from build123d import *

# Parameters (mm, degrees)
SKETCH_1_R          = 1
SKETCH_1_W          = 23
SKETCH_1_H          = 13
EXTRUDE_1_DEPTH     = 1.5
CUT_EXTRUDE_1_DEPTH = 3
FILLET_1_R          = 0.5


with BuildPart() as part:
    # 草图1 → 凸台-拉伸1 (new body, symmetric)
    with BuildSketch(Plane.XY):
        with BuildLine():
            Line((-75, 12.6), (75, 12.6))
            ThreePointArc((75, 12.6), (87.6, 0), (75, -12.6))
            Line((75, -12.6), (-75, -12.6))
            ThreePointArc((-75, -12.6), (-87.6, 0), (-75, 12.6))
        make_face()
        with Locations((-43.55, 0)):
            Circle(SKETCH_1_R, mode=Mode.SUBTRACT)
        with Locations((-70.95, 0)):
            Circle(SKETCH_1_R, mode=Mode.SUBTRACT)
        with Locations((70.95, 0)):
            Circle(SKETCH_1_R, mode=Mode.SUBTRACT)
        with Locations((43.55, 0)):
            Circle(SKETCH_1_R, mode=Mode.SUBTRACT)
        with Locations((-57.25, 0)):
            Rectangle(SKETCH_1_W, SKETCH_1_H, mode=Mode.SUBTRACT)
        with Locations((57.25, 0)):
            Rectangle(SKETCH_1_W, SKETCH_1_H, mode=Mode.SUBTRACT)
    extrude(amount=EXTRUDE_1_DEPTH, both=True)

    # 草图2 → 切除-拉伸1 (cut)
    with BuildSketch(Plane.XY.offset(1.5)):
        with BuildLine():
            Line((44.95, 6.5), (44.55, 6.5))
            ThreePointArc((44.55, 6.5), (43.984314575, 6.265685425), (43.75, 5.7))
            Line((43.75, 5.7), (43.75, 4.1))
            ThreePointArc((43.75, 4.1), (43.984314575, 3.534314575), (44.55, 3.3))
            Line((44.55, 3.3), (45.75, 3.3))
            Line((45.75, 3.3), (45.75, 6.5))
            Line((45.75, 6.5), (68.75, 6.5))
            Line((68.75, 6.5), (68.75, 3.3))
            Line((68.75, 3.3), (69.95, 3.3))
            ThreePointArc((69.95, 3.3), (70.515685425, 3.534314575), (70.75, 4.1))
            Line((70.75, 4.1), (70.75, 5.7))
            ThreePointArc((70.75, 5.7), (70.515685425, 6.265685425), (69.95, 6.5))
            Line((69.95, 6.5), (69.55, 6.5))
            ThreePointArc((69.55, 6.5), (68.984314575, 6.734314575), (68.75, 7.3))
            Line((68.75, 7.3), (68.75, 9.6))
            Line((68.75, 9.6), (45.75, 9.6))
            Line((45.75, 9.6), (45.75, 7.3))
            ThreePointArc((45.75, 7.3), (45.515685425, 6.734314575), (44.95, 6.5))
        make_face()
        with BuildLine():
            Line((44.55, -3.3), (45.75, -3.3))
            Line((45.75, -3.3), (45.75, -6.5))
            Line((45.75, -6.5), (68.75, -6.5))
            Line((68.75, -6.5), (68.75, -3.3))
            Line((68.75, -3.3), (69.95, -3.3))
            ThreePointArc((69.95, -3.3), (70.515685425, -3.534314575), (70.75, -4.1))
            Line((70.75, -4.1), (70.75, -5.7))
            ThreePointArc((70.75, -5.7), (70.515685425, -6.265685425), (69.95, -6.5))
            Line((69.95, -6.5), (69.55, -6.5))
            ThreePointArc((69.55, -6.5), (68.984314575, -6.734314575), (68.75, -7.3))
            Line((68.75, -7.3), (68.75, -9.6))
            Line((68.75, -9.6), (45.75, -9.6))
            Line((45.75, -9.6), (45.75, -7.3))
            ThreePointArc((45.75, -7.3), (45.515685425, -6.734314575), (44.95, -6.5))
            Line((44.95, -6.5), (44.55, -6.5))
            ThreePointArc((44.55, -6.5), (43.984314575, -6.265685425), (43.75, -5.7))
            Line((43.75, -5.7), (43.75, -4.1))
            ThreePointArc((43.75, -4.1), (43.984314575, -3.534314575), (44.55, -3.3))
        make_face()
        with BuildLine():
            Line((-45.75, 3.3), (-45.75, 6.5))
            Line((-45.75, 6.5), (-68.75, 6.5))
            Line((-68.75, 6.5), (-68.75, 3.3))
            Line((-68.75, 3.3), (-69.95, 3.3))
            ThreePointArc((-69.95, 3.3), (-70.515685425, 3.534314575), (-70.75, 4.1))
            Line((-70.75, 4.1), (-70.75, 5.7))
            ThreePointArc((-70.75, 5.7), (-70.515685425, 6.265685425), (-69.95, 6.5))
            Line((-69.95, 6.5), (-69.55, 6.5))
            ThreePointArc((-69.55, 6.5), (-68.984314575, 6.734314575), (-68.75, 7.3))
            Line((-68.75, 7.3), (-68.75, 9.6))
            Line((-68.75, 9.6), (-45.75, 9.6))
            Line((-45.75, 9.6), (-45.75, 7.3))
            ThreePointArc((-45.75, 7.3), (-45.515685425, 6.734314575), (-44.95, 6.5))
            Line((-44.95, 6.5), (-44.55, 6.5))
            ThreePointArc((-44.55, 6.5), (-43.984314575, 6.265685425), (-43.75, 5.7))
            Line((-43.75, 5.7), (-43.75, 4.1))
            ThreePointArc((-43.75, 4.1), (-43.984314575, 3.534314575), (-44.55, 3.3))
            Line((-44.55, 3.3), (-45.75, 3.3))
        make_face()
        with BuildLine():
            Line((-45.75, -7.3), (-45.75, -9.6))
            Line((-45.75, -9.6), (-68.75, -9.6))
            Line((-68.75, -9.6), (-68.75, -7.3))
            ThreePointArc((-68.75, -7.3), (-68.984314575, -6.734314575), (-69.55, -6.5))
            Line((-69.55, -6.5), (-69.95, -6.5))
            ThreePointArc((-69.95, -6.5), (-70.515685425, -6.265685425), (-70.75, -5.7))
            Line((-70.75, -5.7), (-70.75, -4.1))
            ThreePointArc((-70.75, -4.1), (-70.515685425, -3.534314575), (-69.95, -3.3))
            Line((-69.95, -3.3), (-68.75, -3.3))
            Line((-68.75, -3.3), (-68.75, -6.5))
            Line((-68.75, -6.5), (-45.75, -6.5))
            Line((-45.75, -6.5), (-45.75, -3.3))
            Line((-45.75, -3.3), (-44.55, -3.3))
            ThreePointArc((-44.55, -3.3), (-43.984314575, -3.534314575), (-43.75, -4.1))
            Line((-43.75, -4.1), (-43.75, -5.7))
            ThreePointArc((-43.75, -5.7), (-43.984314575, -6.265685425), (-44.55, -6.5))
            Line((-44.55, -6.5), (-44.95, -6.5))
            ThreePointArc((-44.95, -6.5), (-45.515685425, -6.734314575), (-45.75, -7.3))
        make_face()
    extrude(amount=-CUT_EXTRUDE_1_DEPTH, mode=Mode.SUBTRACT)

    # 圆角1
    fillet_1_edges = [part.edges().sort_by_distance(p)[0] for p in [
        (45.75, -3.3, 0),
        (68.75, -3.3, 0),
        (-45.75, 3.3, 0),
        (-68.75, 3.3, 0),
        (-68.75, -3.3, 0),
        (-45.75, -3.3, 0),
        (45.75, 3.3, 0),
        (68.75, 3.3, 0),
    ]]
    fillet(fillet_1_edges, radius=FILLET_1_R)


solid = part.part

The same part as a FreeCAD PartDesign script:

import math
import FreeCAD as App
import Part
import Sketcher
from FreeCAD import Vector


def edges_at(feature, points):
    """Names of the edges that pass closest to the given points."""
    edges = feature.Shape.Edges
    near = lambda p: min(range(len(edges)), key=lambda i: edges[i].distToShape(Part.Vertex(*p))[0])
    return sorted({f"Edge{near(p) + 1}" for p in points})

doc = App.newDocument("Part")
params = doc.addObject("Spreadsheet::Sheet", "Params")
for row, (alias, value) in enumerate([
    ("sketch1_diameter", "2 mm"),
    ("sketch1_radius", "12.6 mm"),
    ("sketch1_width", "150 mm"),
    ("sketch1_width2", "23 mm"),
    ("sketch1_height", "13 mm"),
    ("pad1_length", "3 mm"),
    ("sketch2_radius", "0.8 mm"),
    ("sketch2_width", "23 mm"),
    ("sketch2_width2", "0.4 mm"),
    ("sketch2_height", "1.6 mm"),
    ("sketch2_height2", "2.3 mm"),
    ("pocket1_length", "3 mm"),
    ("fillet_radius", "0.5 mm"),
], start=1):
    params.set(f"A{row}", alias)
    params.set(f"B{row}", "=" + value)
    params.setAlias(f"B{row}", alias)

body = doc.addObject("PartDesign::Body", "Body")

sketch1 = body.newObject("Sketcher::SketchObject", "Sketch")
sketch1.AttachmentSupport = (doc.getObject("XY_Plane"), [""])
sketch1.MapMode = "FlatFace"
sketch1.addGeometry([
    Part.LineSegment(Vector(75, 12.6, 0), Vector(-75, 12.6, 0)),
    Part.ArcOfCircle(Part.Circle(Vector(-75, 0, 0), Vector(0, 0, 1), 12.6), math.radians(90), math.radians(270)),
    Part.LineSegment(Vector(-75, -12.6, 0), Vector(75, -12.6, 0)),
    Part.ArcOfCircle(Part.Circle(Vector(75, 0, 0), Vector(0, 0, 1), 12.6), math.radians(-90), math.radians(90)),
    Part.Circle(Vector(70.95, 0, 0), Vector(0, 0, 1), 1),
    Part.LineSegment(Vector(45.75, -6.5, 0), Vector(45.75, 6.5, 0)),
    Part.LineSegment(Vector(45.75, 6.5, 0), Vector(68.75, 6.5, 0)),
    Part.LineSegment(Vector(68.75, 6.5, 0), Vector(68.75, -6.5, 0)),
    Part.LineSegment(Vector(68.75, -6.5, 0), Vector(45.75, -6.5, 0)),
    Part.Circle(Vector(43.55, 0, 0), Vector(0, 0, 1), 1),
    Part.Circle(Vector(-43.55, 0, 0), Vector(0, 0, 1), 1),
    Part.LineSegment(Vector(-68.75, -6.5, 0), Vector(-68.75, 6.5, 0)),
    Part.LineSegment(Vector(-68.75, 6.5, 0), Vector(-45.75, 6.5, 0)),
    Part.LineSegment(Vector(-45.75, 6.5, 0), Vector(-45.75, -6.5, 0)),
    Part.LineSegment(Vector(-45.75, -6.5, 0), Vector(-68.75, -6.5, 0)),
    Part.Circle(Vector(-70.95, 0, 0), Vector(0, 0, 1), 1),
], False)
sketch1.addConstraint([
    Sketcher.Constraint("Tangent", 0, 2, 1, 1),
    Sketcher.Constraint("Tangent", 1, 2, 2, 1),
    Sketcher.Constraint("Tangent", 2, 2, 3, 1),
    Sketcher.Constraint("Tangent", 3, 2, 0, 1),
    Sketcher.Constraint("Coincident", 5, 2, 6, 1),
    Sketcher.Constraint("Coincident", 6, 2, 7, 1),
    Sketcher.Constraint("Coincident", 7, 2, 8, 1),
    Sketcher.Constraint("Coincident", 8, 2, 5, 1),
    Sketcher.Constraint("Coincident", 11, 2, 12, 1),
    Sketcher.Constraint("Coincident", 12, 2, 13, 1),
    Sketcher.Constraint("Coincident", 13, 2, 14, 1),
    Sketcher.Constraint("Coincident", 14, 2, 11, 1),
    Sketcher.Constraint("Horizontal", 0),
    Sketcher.Constraint("Horizontal", 2),
    Sketcher.Constraint("Vertical", 5),
    Sketcher.Constraint("Horizontal", 6),
    Sketcher.Constraint("Vertical", 7),
    Sketcher.Constraint("Horizontal", 8),
    Sketcher.Constraint("Vertical", 11),
    Sketcher.Constraint("Horizontal", 12),
    Sketcher.Constraint("Vertical", 13),
    Sketcher.Constraint("Horizontal", 14),
    Sketcher.Constraint("Equal", 4, 9),
    Sketcher.Constraint("Equal", 9, 10),
    Sketcher.Constraint("Equal", 10, 15),
    Sketcher.Constraint("Symmetric", 1, 3, 3, 3, -1, 1),
    Sketcher.Constraint("Symmetric", 9, 3, 10, 3, -1, 1),
    Sketcher.Constraint("Symmetric", 4, 3, 15, 3, -1, 1),
    Sketcher.Constraint("Symmetric", 7, 2, 11, 2, -1, 1),
    Sketcher.Constraint("Symmetric", 5, 2, 13, 2, -1, 1),
    Sketcher.Constraint("PointOnObject", 4, 3, -1),
    Sketcher.Constraint("PointOnObject", 9, 3, -1),
    Sketcher.Constraint("Horizontal", 6, 2, 11, 2),
    Sketcher.Constraint("Diameter", 4, 2.0),
    Sketcher.Constraint("Radius", 1, 12.6),
    Sketcher.Constraint("DistanceX", 0, 2, 0, 1, 150.0),
    Sketcher.Constraint("DistanceX", 6, 1, 6, 2, 23.0),
    Sketcher.Constraint("DistanceY", 5, 1, 5, 2, 13.0),
    Sketcher.Constraint("DistanceX", 9, 3, 4, 3, 27.4),
    Sketcher.Constraint("DistanceX", 10, 3, 9, 3, 87.1),
    Sketcher.Constraint("DistanceX", 9, 3, 5, 2, 2.2),
])
sketch1.setExpression("Constraints[33]", "Params.sketch1_diameter")
sketch1.setExpression("Constraints[34]", "Params.sketch1_radius")
sketch1.setExpression("Constraints[35]", "Params.sketch1_width")
sketch1.setExpression("Constraints[36]", "Params.sketch1_width2")
sketch1.setExpression("Constraints[37]", "Params.sketch1_height")
pad1 = body.newObject("PartDesign::Pad", "Pad")
pad1.Profile = sketch1
pad1.setExpression("Length", "Params.pad1_length")
pad1.Midplane = True

sketch2 = body.newObject("Sketcher::SketchObject", "Sketch001")
sketch2.AttachmentSupport = (doc.getObject("XY_Plane"), [""])
sketch2.MapMode = "FlatFace"
sketch2.AttachmentOffset = App.Placement(Vector(0, 0, 1.5), App.Rotation())
sketch2.addGeometry([
    Part.LineSegment(Vector(44.95, 6.5, 0), Vector(44.55, 6.5, 0)),
    Part.ArcOfCircle(Part.Circle(Vector(44.55, 5.7, 0), Vector(0, 0, 1), 0.8), math.radians(90), math.radians(180)),
    Part.LineSegment(Vector(43.75, 5.7, 0), Vector(43.75, 4.1, 0)),
    Part.ArcOfCircle(Part.Circle(Vector(44.55, 4.1, 0), Vector(0, 0, 1), 0.8), math.radians(180), math.radians(270)),
    Part.LineSegment(Vector(44.55, 3.3, 0), Vector(45.75, 3.3, 0)),
    Part.LineSegment(Vector(45.75, 3.3, 0), Vector(45.75, 6.5, 0)),
    Part.LineSegment(Vector(45.75, 6.5, 0), Vector(68.75, 6.5, 0)),
    Part.LineSegment(Vector(68.75, 6.5, 0), Vector(68.75, 3.3, 0)),
    Part.LineSegment(Vector(68.75, 3.3, 0), Vector(69.95, 3.3, 0)),
    Part.ArcOfCircle(Part.Circle(Vector(69.95, 4.1, 0), Vector(0, 0, 1), 0.8), math.radians(-90), math.radians(0)),
    Part.LineSegment(Vector(70.75, 4.1, 0), Vector(70.75, 5.7, 0)),
    Part.ArcOfCircle(Part.Circle(Vector(69.95, 5.7, 0), Vector(0, 0, 1), 0.8), math.radians(0), math.radians(90)),
    Part.LineSegment(Vector(69.95, 6.5, 0), Vector(69.55, 6.5, 0)),
    Part.ArcOfCircle(Part.Circle(Vector(69.55, 7.3, 0), Vector(0, 0, 1), 0.8), math.radians(180), math.radians(270)),
    Part.LineSegment(Vector(68.75, 7.3, 0), Vector(68.75, 9.6, 0)),
    Part.LineSegment(Vector(68.75, 9.6, 0), Vector(45.75, 9.6, 0)),
    Part.LineSegment(Vector(45.75, 9.6, 0), Vector(45.75, 7.3, 0)),
    Part.ArcOfCircle(Part.Circle(Vector(44.95, 7.3, 0), Vector(0, 0, 1), 0.8), math.radians(-90), math.radians(0)),
    Part.LineSegment(Vector(45.75, -3.3, 0), Vector(44.55, -3.3, 0)),
    Part.ArcOfCircle(Part.Circle(Vector(44.55, -4.1, 0), Vector(0, 0, 1), 0.8), math.radians(90), math.radians(180)),
    Part.LineSegment(Vector(43.75, -4.1, 0), Vector(43.75, -5.7, 0)),
    Part.ArcOfCircle(Part.Circle(Vector(44.55, -5.7, 0), Vector(0, 0, 1), 0.8), math.radians(180), math.radians(270)),
    Part.LineSegment(Vector(44.55, -6.5, 0), Vector(44.95, -6.5, 0)),
    Part.ArcOfCircle(Part.Circle(Vector(44.95, -7.3, 0), Vector(0, 0, 1), 0.8), math.radians(0), math.radians(90)),
    Part.LineSegment(Vector(45.75, -7.3, 0), Vector(45.75, -9.6, 0)),
    Part.LineSegment(Vector(45.75, -9.6, 0), Vector(68.75, -9.6, 0)),
    Part.LineSegment(Vector(68.75, -9.6, 0), Vector(68.75, -7.3, 0)),
    Part.ArcOfCircle(Part.Circle(Vector(69.55, -7.3, 0), Vector(0, 0, 1), 0.8), math.radians(90), math.radians(180)),
    Part.LineSegment(Vector(69.55, -6.5, 0), Vector(69.95, -6.5, 0)),
    Part.ArcOfCircle(Part.Circle(Vector(69.95, -5.7, 0), Vector(0, 0, 1), 0.8), math.radians(-90), math.radians(0)),
    Part.LineSegment(Vector(70.75, -5.7, 0), Vector(70.75, -4.1, 0)),
    Part.ArcOfCircle(Part.Circle(Vector(69.95, -4.1, 0), Vector(0, 0, 1), 0.8), math.radians(0), math.radians(90)),
    Part.LineSegment(Vector(69.95, -3.3, 0), Vector(68.75, -3.3, 0)),
    Part.LineSegment(Vector(68.75, -3.3, 0), Vector(68.75, -6.5, 0)),
    Part.LineSegment(Vector(68.75, -6.5, 0), Vector(45.75, -6.5, 0)),
    Part.LineSegment(Vector(45.75, -6.5, 0), Vector(45.75, -3.3, 0)),
    Part.LineSegment(Vector(-45.75, 6.5, 0), Vector(-45.75, 3.3, 0)),
    Part.LineSegment(Vector(-45.75, 3.3, 0), Vector(-44.55, 3.3, 0)),
    Part.ArcOfCircle(Part.Circle(Vector(-44.55, 4.1, 0), Vector(0, 0, 1), 0.8), math.radians(-90), math.radians(0)),
    Part.LineSegment(Vector(-43.75, 4.1, 0), Vector(-43.75, 5.7, 0)),
    Part.ArcOfCircle(Part.Circle(Vector(-44.55, 5.7, 0), Vector(0, 0, 1), 0.8), math.radians(0), math.radians(90)),
    Part.LineSegment(Vector(-44.55, 6.5, 0), Vector(-44.95, 6.5, 0)),
    Part.ArcOfCircle(Part.Circle(Vector(-44.95, 7.3, 0), Vector(0, 0, 1), 0.8), math.radians(180), math.radians(270)),
    Part.LineSegment(Vector(-45.75, 7.3, 0), Vector(-45.75, 9.6, 0)),
    Part.LineSegment(Vector(-45.75, 9.6, 0), Vector(-68.75, 9.6, 0)),
    Part.LineSegment(Vector(-68.75, 9.6, 0), Vector(-68.75, 7.3, 0)),
    Part.ArcOfCircle(Part.Circle(Vector(-69.55, 7.3, 0), Vector(0, 0, 1), 0.8), math.radians(-90), math.radians(0)),
    Part.LineSegment(Vector(-69.55, 6.5, 0), Vector(-69.95, 6.5, 0)),
    Part.ArcOfCircle(Part.Circle(Vector(-69.95, 5.7, 0), Vector(0, 0, 1), 0.8), math.radians(90), math.radians(180)),
    Part.LineSegment(Vector(-70.75, 5.7, 0), Vector(-70.75, 4.1, 0)),
    Part.ArcOfCircle(Part.Circle(Vector(-69.95, 4.1, 0), Vector(0, 0, 1), 0.8), math.radians(180), math.radians(270)),
    Part.LineSegment(Vector(-69.95, 3.3, 0), Vector(-68.75, 3.3, 0)),
    Part.LineSegment(Vector(-68.75, 3.3, 0), Vector(-68.75, 6.5, 0)),
    Part.LineSegment(Vector(-68.75, 6.5, 0), Vector(-45.75, 6.5, 0)),
    Part.LineSegment(Vector(-45.75, -9.6, 0), Vector(-45.75, -7.3, 0)),
    Part.ArcOfCircle(Part.Circle(Vector(-44.95, -7.3, 0), Vector(0, 0, 1), 0.8), math.radians(90), math.radians(180)),
    Part.LineSegment(Vector(-44.95, -6.5, 0), Vector(-44.55, -6.5, 0)),
    Part.ArcOfCircle(Part.Circle(Vector(-44.55, -5.7, 0), Vector(0, 0, 1), 0.8), math.radians(-90), math.radians(0)),
    Part.LineSegment(Vector(-43.75, -5.7, 0), Vector(-43.75, -4.1, 0)),
    Part.ArcOfCircle(Part.Circle(Vector(-44.55, -4.1, 0), Vector(0, 0, 1), 0.8), math.radians(0), math.radians(90)),
    Part.LineSegment(Vector(-44.55, -3.3, 0), Vector(-45.75, -3.3, 0)),
    Part.LineSegment(Vector(-45.75, -3.3, 0), Vector(-45.75, -6.5, 0)),
    Part.LineSegment(Vector(-45.75, -6.5, 0), Vector(-68.75, -6.5, 0)),
    Part.LineSegment(Vector(-68.75, -6.5, 0), Vector(-68.75, -3.3, 0)),
    Part.LineSegment(Vector(-68.75, -3.3, 0), Vector(-69.95, -3.3, 0)),
    Part.ArcOfCircle(Part.Circle(Vector(-69.95, -4.1, 0), Vector(0, 0, 1), 0.8), math.radians(90), math.radians(180)),
    Part.LineSegment(Vector(-70.75, -4.1, 0), Vector(-70.75, -5.7, 0)),
    Part.ArcOfCircle(Part.Circle(Vector(-69.95, -5.7, 0), Vector(0, 0, 1), 0.8), math.radians(180), math.radians(270)),
    Part.LineSegment(Vector(-69.95, -6.5, 0), Vector(-69.55, -6.5, 0)),
    Part.ArcOfCircle(Part.Circle(Vector(-69.55, -7.3, 0), Vector(0, 0, 1), 0.8), math.radians(0), math.radians(90)),
    Part.LineSegment(Vector(-68.75, -7.3, 0), Vector(-68.75, -9.6, 0)),
    Part.LineSegment(Vector(-68.75, -9.6, 0), Vector(-45.75, -9.6, 0)),
], False)
sketch2.addConstraint([
    Sketcher.Constraint("Tangent", 0, 2, 1, 1),
    Sketcher.Constraint("Tangent", 1, 2, 2, 1),
    Sketcher.Constraint("Tangent", 2, 2, 3, 1),
    Sketcher.Constraint("Tangent", 3, 2, 4, 1),
    Sketcher.Constraint("Coincident", 4, 2, 5, 1),
    Sketcher.Constraint("Coincident", 5, 2, 6, 1),
    Sketcher.Constraint("Coincident", 6, 2, 7, 1),
    Sketcher.Constraint("Coincident", 7, 2, 8, 1),
    Sketcher.Constraint("Tangent", 8, 2, 9, 1),
    Sketcher.Constraint("Tangent", 9, 2, 10, 1),
    Sketcher.Constraint("Tangent", 10, 2, 11, 1),
    Sketcher.Constraint("Tangent", 11, 2, 12, 1),
    Sketcher.Constraint("Tangent", 12, 2, 13, 2),
    Sketcher.Constraint("Tangent", 13, 1, 14, 1),
    Sketcher.Constraint("Coincident", 14, 2, 15, 1),
    Sketcher.Constraint("Coincident", 15, 2, 16, 1),
    Sketcher.Constraint("Tangent", 16, 2, 17, 2),
    Sketcher.Constraint("Tangent", 17, 1, 0, 1),
    Sketcher.Constraint("Tangent", 18, 2, 19, 1),
    Sketcher.Constraint("Tangent", 19, 2, 20, 1),
    Sketcher.Constraint("Tangent", 20, 2, 21, 1),
    Sketcher.Constraint("Tangent", 21, 2, 22, 1),
    Sketcher.Constraint("Tangent", 22, 2, 23, 2),
    Sketcher.Constraint("Tangent", 23, 1, 24, 1),
    Sketcher.Constraint("Coincident", 24, 2, 25, 1),
    Sketcher.Constraint("Coincident", 25, 2, 26, 1),
    Sketcher.Constraint("Tangent", 26, 2, 27, 2),
    Sketcher.Constraint("Tangent", 27, 1, 28, 1),
    Sketcher.Constraint("Tangent", 28, 2, 29, 1),
    Sketcher.Constraint("Tangent", 29, 2, 30, 1),
    Sketcher.Constraint("Tangent", 30, 2, 31, 1),
    Sketcher.Constraint("Tangent", 31, 2, 32, 1),
    Sketcher.Constraint("Coincident", 32, 2, 33, 1),
    Sketcher.Constraint("Coincident", 33, 2, 34, 1),
    Sketcher.Constraint("Coincident", 34, 2, 35, 1),
    Sketcher.Constraint("Coincident", 35, 2, 18, 1),
    Sketcher.Constraint("Coincident", 36, 2, 37, 1),
    Sketcher.Constraint("Tangent", 37, 2, 38, 1),
    Sketcher.Constraint("Tangent", 38, 2, 39, 1),
    Sketcher.Constraint("Tangent", 39, 2, 40, 1),
    Sketcher.Constraint("Tangent", 40, 2, 41, 1),
    Sketcher.Constraint("Tangent", 41, 2, 42, 2),
    Sketcher.Constraint("Tangent", 42, 1, 43, 1),
    Sketcher.Constraint("Coincident", 43, 2, 44, 1),
    Sketcher.Constraint("Coincident", 44, 2, 45, 1),
    Sketcher.Constraint("Tangent", 45, 2, 46, 2),
    Sketcher.Constraint("Tangent", 46, 1, 47, 1),
    Sketcher.Constraint("Tangent", 47, 2, 48, 1),
    Sketcher.Constraint("Tangent", 48, 2, 49, 1),
    Sketcher.Constraint("Tangent", 49, 2, 50, 1),
    Sketcher.Constraint("Tangent", 50, 2, 51, 1),
    Sketcher.Constraint("Coincident", 51, 2, 52, 1),
    Sketcher.Constraint("Coincident", 52, 2, 53, 1),
    Sketcher.Constraint("Coincident", 53, 2, 36, 1),
    Sketcher.Constraint("Tangent", 54, 2, 55, 2),
    Sketcher.Constraint("Tangent", 55, 1, 56, 1),
    Sketcher.Constraint("Tangent", 56, 2, 57, 1),
    Sketcher.Constraint("Tangent", 57, 2, 58, 1),
    Sketcher.Constraint("Tangent", 58, 2, 59, 1),
    Sketcher.Constraint("Tangent", 59, 2, 60, 1),
    Sketcher.Constraint("Coincident", 60, 2, 61, 1),
    Sketcher.Constraint("Coincident", 61, 2, 62, 1),
    Sketcher.Constraint("Coincident", 62, 2, 63, 1),
    Sketcher.Constraint("Coincident", 63, 2, 64, 1),
    Sketcher.Constraint("Tangent", 64, 2, 65, 1),
    Sketcher.Constraint("Tangent", 65, 2, 66, 1),
    Sketcher.Constraint("Tangent", 66, 2, 67, 1),
    Sketcher.Constraint("Tangent", 67, 2, 68, 1),
    Sketcher.Constraint("Tangent", 68, 2, 69, 2),
    Sketcher.Constraint("Tangent", 69, 1, 70, 1),
    Sketcher.Constraint("Coincident", 70, 2, 71, 1),
    Sketcher.Constraint("Coincident", 71, 2, 54, 1),
    Sketcher.Constraint("Horizontal", 0),
    Sketcher.Constraint("Vertical", 2),
    Sketcher.Constraint("Horizontal", 4),
    Sketcher.Constraint("Vertical", 5),
    Sketcher.Constraint("Horizontal", 6),
    Sketcher.Constraint("Vertical", 7),
    Sketcher.Constraint("Horizontal", 8),
    Sketcher.Constraint("Vertical", 10),
    Sketcher.Constraint("Horizontal", 12),
    Sketcher.Constraint("Vertical", 14),
    Sketcher.Constraint("Horizontal", 15),
    Sketcher.Constraint("Vertical", 16),
    Sketcher.Constraint("Horizontal", 18),
    Sketcher.Constraint("Vertical", 20),
    Sketcher.Constraint("Horizontal", 22),
    Sketcher.Constraint("Vertical", 24),
    Sketcher.Constraint("Horizontal", 25),
    Sketcher.Constraint("Vertical", 26),
    Sketcher.Constraint("Horizontal", 28),
    Sketcher.Constraint("Vertical", 30),
    Sketcher.Constraint("Horizontal", 32),
    Sketcher.Constraint("Vertical", 33),
    Sketcher.Constraint("Horizontal", 34),
    Sketcher.Constraint("Vertical", 35),
    Sketcher.Constraint("Vertical", 36),
    Sketcher.Constraint("Horizontal", 37),
    Sketcher.Constraint("Vertical", 39),
    Sketcher.Constraint("Horizontal", 41),
    Sketcher.Constraint("Vertical", 43),
    Sketcher.Constraint("Horizontal", 44),
    Sketcher.Constraint("Vertical", 45),
    Sketcher.Constraint("Horizontal", 47),
    Sketcher.Constraint("Vertical", 49),
    Sketcher.Constraint("Horizontal", 51),
    Sketcher.Constraint("Vertical", 52),
    Sketcher.Constraint("Horizontal", 53),
    Sketcher.Constraint("Vertical", 54),
    Sketcher.Constraint("Horizontal", 56),
    Sketcher.Constraint("Vertical", 58),
    Sketcher.Constraint("Horizontal", 60),
    Sketcher.Constraint("Vertical", 61),
    Sketcher.Constraint("Horizontal", 62),
    Sketcher.Constraint("Vertical", 63),
    Sketcher.Constraint("Horizontal", 64),
    Sketcher.Constraint("Vertical", 66),
    Sketcher.Constraint("Horizontal", 68),
    Sketcher.Constraint("Vertical", 70),
    Sketcher.Constraint("Horizontal", 71),
    Sketcher.Constraint("Equal", 1, 3),
    Sketcher.Constraint("Equal", 3, 9),
    Sketcher.Constraint("Equal", 9, 11),
    Sketcher.Constraint("Equal", 11, 13),
    Sketcher.Constraint("Equal", 13, 17),
    Sketcher.Constraint("Equal", 17, 19),
    Sketcher.Constraint("Equal", 19, 21),
    Sketcher.Constraint("Equal", 21, 23),
    Sketcher.Constraint("Equal", 23, 27),
    Sketcher.Constraint("Equal", 27, 29),
    Sketcher.Constraint("Equal", 29, 31),
    Sketcher.Constraint("Equal", 31, 38),
    Sketcher.Constraint("Equal", 38, 40),
    Sketcher.Constraint("Equal", 40, 42),
    Sketcher.Constraint("Equal", 42, 46),
    Sketcher.Constraint("Equal", 46, 48),
    Sketcher.Constraint("Equal", 48, 50),
    Sketcher.Constraint("Equal", 50, 55),
    Sketcher.Constraint("Equal", 55, 57),
    Sketcher.Constraint("Equal", 57, 59),
    Sketcher.Constraint("Equal", 59, 65),
    Sketcher.Constraint("Equal", 65, 67),
    Sketcher.Constraint("Equal", 67, 69),
    Sketcher.Constraint("Symmetric", 19, 3, 38, 3, -1, 1),
    Sketcher.Constraint("Symmetric", 23, 3, 42, 3, -1, 1),
    Sketcher.Constraint("Symmetric", 27, 3, 46, 3, -1, 1),
    Sketcher.Constraint("Symmetric", 31, 3, 50, 3, -1, 1),
    Sketcher.Constraint("Symmetric", 17, 3, 55, 3, -1, 1),
    Sketcher.Constraint("Symmetric", 3, 3, 59, 3, -1, 1),
    Sketcher.Constraint("Symmetric", 9, 3, 65, 3, -1, 1),
    Sketcher.Constraint("Symmetric", 13, 3, 69, 3, -1, 1),
    Sketcher.Constraint("Symmetric", 33, 2, 52, 2, -1, 1),
    Sketcher.Constraint("Symmetric", 5, 2, 61, 2, -1, 1),
    Sketcher.Constraint("Symmetric", 3, 3, 38, 3, -2),
    Sketcher.Constraint("Symmetric", 17, 3, 42, 3, -2),
    Sketcher.Constraint("Symmetric", 13, 3, 46, 3, -2),
    Sketcher.Constraint("Symmetric", 9, 3, 50, 3, -2),
    Sketcher.Constraint("Symmetric", 6, 2, 52, 2, -2),
    Sketcher.Constraint("Horizontal", 3, 3, 9, 3),
    Sketcher.Constraint("Horizontal", 1, 3, 11, 3),
    Sketcher.Constraint("Horizontal", 0, 2, 5, 2),
    Sketcher.Constraint("Horizontal", 15, 2, 43, 2),
    Sketcher.Constraint("Horizontal", 25, 2, 70, 2),
    Sketcher.Constraint("Vertical", 7, 2, 13, 1),
    Sketcher.Constraint("Vertical", 5, 2, 15, 2),
    Sketcher.Constraint("Vertical", 24, 2, 34, 2),
    Sketcher.Constraint("Vertical", 36, 2, 42, 1),
    Sketcher.Constraint("Vertical", 52, 2, 62, 2),
    Sketcher.Constraint("Equal", 4, 8),
    Sketcher.Constraint("Equal", 16, 24),
    Sketcher.Constraint("Radius", 1, 0.8),
    Sketcher.Constraint("DistanceX", 6, 1, 6, 2, 23.0),
    Sketcher.Constraint("DistanceX", 0, 2, 0, 1, 0.4),
    Sketcher.Constraint("DistanceY", 2, 2, 2, 1, 1.6),
    Sketcher.Constraint("DistanceY", 14, 1, 14, 2, 2.3),
    Sketcher.Constraint("DistanceY", -1, 1, 1, 3, 5.7),
    Sketcher.Constraint("DistanceX", -1, 1, 1, 3, 44.55),
])
sketch2.setExpression("Constraints[170]", "Params.sketch2_radius")
sketch2.setExpression("Constraints[171]", "Params.sketch2_width")
sketch2.setExpression("Constraints[172]", "Params.sketch2_width2")
sketch2.setExpression("Constraints[173]", "Params.sketch2_height")
sketch2.setExpression("Constraints[174]", "Params.sketch2_height2")
pocket1 = body.newObject("PartDesign::Pocket", "Pocket")
pocket1.Profile = sketch2
pocket1.setExpression("Length", "Params.pocket1_length")
doc.recompute()

fillet = body.newObject("PartDesign::Fillet", "Fillet")
fillet.Base = (pocket1, edges_at(pocket1, [
    (45.75, -3.3, 0),
    (68.75, -3.3, 0),
    (-45.75, 3.3, 0),
    (-68.75, 3.3, 0),
    (-68.75, -3.3, 0),
    (-45.75, -3.3, 0),
    (45.75, 3.3, 0),
    (68.75, 3.3, 0),
]))
fillet.setExpression("Radius", "Params.fillet_radius")

doc.recompute()
